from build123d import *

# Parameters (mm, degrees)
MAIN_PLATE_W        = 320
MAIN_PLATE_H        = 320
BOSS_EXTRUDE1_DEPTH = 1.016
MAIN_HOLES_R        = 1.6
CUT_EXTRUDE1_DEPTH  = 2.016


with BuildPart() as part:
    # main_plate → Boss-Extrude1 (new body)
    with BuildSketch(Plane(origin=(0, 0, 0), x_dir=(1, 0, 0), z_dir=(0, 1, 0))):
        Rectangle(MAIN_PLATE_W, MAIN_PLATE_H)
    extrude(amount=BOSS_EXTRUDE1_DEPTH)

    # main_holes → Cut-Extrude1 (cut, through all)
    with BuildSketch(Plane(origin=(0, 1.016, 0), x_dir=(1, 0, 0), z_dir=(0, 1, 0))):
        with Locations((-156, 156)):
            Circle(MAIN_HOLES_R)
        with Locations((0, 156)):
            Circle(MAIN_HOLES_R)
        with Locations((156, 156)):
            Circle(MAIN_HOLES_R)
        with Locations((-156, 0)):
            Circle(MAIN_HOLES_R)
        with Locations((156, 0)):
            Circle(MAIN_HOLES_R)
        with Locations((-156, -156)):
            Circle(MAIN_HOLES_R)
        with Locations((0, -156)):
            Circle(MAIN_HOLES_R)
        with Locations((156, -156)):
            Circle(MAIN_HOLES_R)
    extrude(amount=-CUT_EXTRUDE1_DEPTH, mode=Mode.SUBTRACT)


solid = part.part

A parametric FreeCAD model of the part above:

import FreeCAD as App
import Part
import Sketcher
from FreeCAD import Vector
Q = App.Units.Quantity


def add_polygon(sketch, points):
    """Adds a closed chain of lines whose ends are joined by coincident constraints."""
    first, n = sketch.GeometryCount, len(points)
    for a, b in zip(points, points[1:] + points[:1]):
        sketch.addGeometry(Part.LineSegment(App.Vector(*a, 0), App.Vector(*b, 0)), False)
    for i in range(n):
        sketch.addConstraint(Sketcher.Constraint("Coincident", first + i, 2, first + (i + 1) % n, 1))

doc = App.newDocument("Part")
body = doc.addObject("PartDesign::Body", "Body")

# Sketch on XZ plane
sketch1 = doc.addObject("Sketcher::SketchObject", "Sketch")
body.addObject(sketch1)
sketch1.AttachmentSupport = (doc.XZ_Plane, [""])
sketch1.MapMode = "FlatFace"
add_polygon(sketch1, [(-160, -160), (-160, 160), (160, 160), (160, -160)])  # lines 0-3
sketch1.addConstraint([
    Sketcher.Constraint("Vertical", 0),
    Sketcher.Constraint("Horizontal", 1),
    Sketcher.Constraint("Vertical", 2),
    Sketcher.Constraint("Horizontal", 3),
    Sketcher.Constraint("Symmetric", 0, 2, 2, 2, -1, 1),
    Sketcher.Constraint("Equal", 3, 0),
    Sketcher.Constraint("DistanceX", 1, 1, 1, 2, Q("320 mm")),
])
pad1 = doc.addObject("PartDesign::Pad", "Pad")
body.addObject(pad1)
pad1.Profile = sketch1
pad1.Length = 1.016
pad1.Reversed = True

# Sketch on XZ plane
sketch2 = doc.addObject("Sketcher::SketchObject", "Sketch001")
body.addObject(sketch2)
sketch2.AttachmentSupport = (doc.XZ_Plane, [""])
sketch2.MapMode = "FlatFace"
sketch2.AttachmentOffset = App.Placement(Vector(0, 0, -1.016), App.Rotation())
sketch2.addGeometry([
    Part.Circle(Vector(-156, -156, 0), Vector(0, 0, 1), 1.6),  # 0
    Part.Circle(Vector(0, -156, 0), Vector(0, 0, 1), 1.6),  # 1
    Part.Circle(Vector(156, -156, 0), Vector(0, 0, 1), 1.6),  # 2
    Part.Circle(Vector(-156, 0, 0), Vector(0, 0, 1), 1.6),  # 3
    Part.Circle(Vector(156, 0, 0), Vector(0, 0, 1), 1.6),  # 4
    Part.Circle(Vector(-156, 156, 0), Vector(0, 0, 1), 1.6),  # 5
    Part.Circle(Vector(0, 156, 0), Vector(0, 0, 1), 1.6),  # 6
    Part.Circle(Vector(156, 156, 0), Vector(0, 0, 1), 1.6),  # 7
], False)
sketch2.addConstraint([
    Sketcher.Constraint("Equal", 0, 1),
    Sketcher.Constraint("Equal", 1, 2),
    Sketcher.Constraint("Equal", 2, 3),
    Sketcher.Constraint("Equal", 3, 4),
    Sketcher.Constraint("Equal", 4, 5),
    Sketcher.Constraint("Equal", 5, 6),
    Sketcher.Constraint("Equal", 6, 7),
    Sketcher.Constraint("Symmetric", 3, 3, 4, 3, -1, 1),
    Sketcher.Constraint("Symmetric", 2, 3, 5, 3, -1, 1),
    Sketcher.Constraint("Symmetric", 1, 3, 6, 3, -1, 1),
    Sketcher.Constraint("Symmetric", 0, 3, 7, 3, -1, 1),
    Sketcher.Constraint("Symmetric", 0, 3, 2, 3, -2),
    Sketcher.Constraint("PointOnObject", 1, 3, -2),
    Sketcher.Constraint("PointOnObject", 3, 3, -1),
    Sketcher.Constraint("Horizontal", 0, 3, 1, 3),
    Sketcher.Constraint("Vertical", 0, 3, 3, 3),
    Sketcher.Constraint("Diameter", 0, Q("3.2 mm")),
    Sketcher.Constraint("DistanceX", 0, 3, -1, 1, Q("156 mm")),
    Sketcher.Constraint("DistanceY", 0, 3, -1, 1, Q("156 mm")),
])
pocket1 = doc.addObject("PartDesign::Pocket", "Pocket")
body.addObject(pocket1)
pocket1.Profile = sketch2
pocket1.Type = "ThroughAll"
pocket1.Reversed = True

doc.recompute()
